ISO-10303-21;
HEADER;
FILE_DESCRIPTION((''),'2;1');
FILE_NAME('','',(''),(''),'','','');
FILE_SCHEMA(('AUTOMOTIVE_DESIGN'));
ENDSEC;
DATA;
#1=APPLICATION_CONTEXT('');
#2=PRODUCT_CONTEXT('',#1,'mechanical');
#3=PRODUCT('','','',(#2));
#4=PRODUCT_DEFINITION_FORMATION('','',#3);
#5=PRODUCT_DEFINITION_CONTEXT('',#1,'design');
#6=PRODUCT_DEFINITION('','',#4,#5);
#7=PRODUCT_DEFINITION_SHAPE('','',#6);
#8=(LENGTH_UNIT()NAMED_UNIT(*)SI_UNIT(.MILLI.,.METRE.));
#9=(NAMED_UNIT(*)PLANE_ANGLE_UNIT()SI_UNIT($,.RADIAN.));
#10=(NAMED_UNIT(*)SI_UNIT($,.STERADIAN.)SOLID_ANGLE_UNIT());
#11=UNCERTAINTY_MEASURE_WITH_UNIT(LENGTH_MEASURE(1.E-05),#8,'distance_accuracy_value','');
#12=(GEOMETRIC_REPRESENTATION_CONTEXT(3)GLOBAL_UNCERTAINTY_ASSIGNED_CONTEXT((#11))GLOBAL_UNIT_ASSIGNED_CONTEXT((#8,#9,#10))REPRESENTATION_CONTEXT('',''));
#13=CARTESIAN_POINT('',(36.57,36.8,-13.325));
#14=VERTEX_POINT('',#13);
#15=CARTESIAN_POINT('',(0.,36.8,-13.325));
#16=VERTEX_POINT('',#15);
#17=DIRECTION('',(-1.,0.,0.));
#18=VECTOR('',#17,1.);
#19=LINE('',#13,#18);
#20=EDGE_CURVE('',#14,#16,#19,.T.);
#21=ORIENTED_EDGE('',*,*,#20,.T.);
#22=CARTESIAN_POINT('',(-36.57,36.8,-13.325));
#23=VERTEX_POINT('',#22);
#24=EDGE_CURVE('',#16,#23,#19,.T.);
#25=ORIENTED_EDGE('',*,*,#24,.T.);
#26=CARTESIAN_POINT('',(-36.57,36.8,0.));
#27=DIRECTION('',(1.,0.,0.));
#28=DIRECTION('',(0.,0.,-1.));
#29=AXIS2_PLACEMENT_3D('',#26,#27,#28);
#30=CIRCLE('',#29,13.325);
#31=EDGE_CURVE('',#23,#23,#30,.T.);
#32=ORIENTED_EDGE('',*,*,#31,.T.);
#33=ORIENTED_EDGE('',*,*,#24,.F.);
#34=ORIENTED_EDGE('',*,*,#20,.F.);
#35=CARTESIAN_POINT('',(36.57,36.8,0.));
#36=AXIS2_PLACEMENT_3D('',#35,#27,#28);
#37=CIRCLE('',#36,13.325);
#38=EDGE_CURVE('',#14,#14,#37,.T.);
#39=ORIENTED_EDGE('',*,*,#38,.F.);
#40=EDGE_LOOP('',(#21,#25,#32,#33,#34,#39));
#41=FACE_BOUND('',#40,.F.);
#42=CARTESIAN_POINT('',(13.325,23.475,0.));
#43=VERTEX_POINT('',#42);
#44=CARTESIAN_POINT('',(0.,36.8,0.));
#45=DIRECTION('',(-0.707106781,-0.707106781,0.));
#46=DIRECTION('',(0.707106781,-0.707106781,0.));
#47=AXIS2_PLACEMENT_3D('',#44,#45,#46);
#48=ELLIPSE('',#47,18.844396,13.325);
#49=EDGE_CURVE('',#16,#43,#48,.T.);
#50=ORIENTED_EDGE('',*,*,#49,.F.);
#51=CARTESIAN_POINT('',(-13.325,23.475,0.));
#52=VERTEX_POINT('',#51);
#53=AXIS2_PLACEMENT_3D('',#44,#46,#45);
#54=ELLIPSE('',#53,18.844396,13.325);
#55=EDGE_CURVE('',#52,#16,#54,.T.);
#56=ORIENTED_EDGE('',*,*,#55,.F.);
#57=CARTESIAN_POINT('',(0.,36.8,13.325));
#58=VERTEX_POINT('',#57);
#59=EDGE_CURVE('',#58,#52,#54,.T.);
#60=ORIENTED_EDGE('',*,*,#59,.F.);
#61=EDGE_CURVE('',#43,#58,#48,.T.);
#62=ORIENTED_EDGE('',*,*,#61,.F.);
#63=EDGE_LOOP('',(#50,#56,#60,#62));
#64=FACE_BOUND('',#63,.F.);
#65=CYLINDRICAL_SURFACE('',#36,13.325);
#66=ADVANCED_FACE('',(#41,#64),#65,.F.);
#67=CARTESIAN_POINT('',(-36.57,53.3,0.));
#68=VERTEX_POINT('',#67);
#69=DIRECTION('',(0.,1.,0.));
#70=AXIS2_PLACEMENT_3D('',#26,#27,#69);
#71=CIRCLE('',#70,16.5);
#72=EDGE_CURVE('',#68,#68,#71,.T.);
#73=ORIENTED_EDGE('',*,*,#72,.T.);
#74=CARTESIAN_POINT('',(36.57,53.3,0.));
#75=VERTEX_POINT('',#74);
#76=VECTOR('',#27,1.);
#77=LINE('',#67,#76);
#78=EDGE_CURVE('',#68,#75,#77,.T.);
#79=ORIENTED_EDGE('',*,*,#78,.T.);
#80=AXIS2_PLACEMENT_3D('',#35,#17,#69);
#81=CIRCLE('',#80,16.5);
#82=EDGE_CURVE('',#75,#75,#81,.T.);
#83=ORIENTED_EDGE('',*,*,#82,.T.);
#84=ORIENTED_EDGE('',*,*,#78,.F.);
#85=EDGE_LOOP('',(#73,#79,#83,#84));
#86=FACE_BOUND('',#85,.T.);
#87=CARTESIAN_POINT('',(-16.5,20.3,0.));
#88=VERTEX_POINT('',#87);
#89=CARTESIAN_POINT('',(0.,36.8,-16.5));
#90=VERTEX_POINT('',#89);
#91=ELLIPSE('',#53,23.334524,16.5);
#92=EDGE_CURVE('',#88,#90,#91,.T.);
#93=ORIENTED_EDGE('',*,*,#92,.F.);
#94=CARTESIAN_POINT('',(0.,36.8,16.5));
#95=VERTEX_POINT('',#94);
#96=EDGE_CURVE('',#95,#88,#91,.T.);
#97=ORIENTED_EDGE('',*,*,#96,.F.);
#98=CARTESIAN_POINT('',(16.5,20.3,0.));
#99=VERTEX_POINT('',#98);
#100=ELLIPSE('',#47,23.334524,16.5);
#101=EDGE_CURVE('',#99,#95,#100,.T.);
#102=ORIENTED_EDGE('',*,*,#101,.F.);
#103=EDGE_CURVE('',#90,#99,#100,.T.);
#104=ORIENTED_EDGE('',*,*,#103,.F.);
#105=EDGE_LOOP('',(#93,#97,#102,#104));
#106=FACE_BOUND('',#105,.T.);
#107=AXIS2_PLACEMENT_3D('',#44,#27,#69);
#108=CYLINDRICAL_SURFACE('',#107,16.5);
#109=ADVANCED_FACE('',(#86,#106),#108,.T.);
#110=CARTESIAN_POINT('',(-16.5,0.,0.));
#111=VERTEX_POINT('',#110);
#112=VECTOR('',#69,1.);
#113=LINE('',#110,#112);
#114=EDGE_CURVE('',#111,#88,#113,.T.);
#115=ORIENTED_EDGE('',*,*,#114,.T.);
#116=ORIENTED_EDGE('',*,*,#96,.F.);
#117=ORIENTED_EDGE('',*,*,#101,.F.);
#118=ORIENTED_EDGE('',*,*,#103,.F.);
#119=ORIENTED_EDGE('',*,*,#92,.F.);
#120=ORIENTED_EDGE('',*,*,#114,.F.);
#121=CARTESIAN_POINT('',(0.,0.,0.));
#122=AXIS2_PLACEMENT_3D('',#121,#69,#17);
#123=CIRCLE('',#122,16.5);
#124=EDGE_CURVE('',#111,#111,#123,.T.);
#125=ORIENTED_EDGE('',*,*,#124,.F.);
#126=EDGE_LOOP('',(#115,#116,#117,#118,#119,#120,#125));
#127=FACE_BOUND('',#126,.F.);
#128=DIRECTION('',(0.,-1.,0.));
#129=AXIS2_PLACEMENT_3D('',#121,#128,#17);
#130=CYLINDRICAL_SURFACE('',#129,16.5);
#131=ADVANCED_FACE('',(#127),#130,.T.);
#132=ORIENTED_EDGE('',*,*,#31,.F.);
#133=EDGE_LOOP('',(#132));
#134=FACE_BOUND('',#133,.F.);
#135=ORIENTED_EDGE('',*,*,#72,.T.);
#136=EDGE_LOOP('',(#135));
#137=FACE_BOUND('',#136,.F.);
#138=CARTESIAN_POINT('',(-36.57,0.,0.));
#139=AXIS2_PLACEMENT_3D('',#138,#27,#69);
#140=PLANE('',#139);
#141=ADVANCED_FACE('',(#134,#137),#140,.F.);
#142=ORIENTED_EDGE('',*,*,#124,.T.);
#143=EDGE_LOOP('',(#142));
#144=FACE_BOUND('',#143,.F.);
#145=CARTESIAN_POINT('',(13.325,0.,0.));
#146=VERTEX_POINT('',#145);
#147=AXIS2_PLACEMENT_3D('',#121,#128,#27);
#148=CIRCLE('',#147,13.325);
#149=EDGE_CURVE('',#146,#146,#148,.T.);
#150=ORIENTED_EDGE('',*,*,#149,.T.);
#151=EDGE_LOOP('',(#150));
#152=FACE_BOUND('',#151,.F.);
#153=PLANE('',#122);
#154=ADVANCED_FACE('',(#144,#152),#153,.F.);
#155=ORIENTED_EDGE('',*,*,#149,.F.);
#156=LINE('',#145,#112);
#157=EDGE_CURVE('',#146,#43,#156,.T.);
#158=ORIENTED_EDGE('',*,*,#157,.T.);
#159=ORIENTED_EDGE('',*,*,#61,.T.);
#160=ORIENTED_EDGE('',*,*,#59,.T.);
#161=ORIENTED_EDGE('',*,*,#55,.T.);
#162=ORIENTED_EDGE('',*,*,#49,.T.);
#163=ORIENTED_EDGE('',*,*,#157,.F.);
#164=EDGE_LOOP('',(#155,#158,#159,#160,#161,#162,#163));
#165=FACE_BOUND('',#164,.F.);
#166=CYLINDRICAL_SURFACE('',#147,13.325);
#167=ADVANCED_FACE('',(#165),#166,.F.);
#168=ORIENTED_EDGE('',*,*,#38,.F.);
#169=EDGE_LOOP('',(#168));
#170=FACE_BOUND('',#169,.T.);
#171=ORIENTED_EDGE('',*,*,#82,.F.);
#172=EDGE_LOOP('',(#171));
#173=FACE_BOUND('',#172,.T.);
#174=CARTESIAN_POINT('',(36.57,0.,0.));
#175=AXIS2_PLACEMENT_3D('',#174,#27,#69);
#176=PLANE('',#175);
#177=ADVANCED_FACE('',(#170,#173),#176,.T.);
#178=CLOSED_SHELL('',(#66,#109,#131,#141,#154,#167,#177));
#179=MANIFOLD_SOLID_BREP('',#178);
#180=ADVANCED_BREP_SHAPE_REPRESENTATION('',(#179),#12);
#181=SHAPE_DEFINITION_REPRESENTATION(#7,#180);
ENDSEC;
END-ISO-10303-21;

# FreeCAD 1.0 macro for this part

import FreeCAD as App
import Part
import Sketcher

doc = App.newDocument("Part")
body = doc.addObject("PartDesign::Body", "Body")

# Sketch on XZ plane
sketch1 = doc.addObject("Sketcher::SketchObject", "Sketch")
body.addObject(sketch1)
sketch1.AttachmentSupport = (doc.XZ_Plane, [""])
sketch1.MapMode = "FlatFace"
sketch1.addGeometry(Part.Circle(App.Vector(0, 0, 0), App.Vector(0, 0, 1), 16), False)
sketch1.addConstraint([
    Sketcher.Constraint("Coincident", 0, 3, -1, 1),
    Sketcher.Constraint("Diameter", 0, 33.0),
])
pad1 = doc.addObject("PartDesign::Pad", "Pad")
body.addObject(pad1)
pad1.Profile = sketch1
pad1.Length = 36.8
pad1.Reversed = True

# Sketch on YZ plane
sketch2 = doc.addObject("Sketcher::SketchObject", "Sketch001")
body.addObject(sketch2)
sketch2.AttachmentSupport = (doc.YZ_Plane, [""])
sketch2.MapMode = "FlatFace"
sketch2.addGeometry(Part.Circle(App.Vector(37, 0, 0), App.Vector(0, 0, 1), 16), False)
sketch2.addConstraint([
    Sketcher.Constraint("PointOnObject", 0, 3, -1),
    Sketcher.Constraint("Diameter", 0, 33.0),
    Sketcher.Constraint("DistanceX", -1, 1, 0, 3, 36.8),
])
pad2 = doc.addObject("PartDesign::Pad", "Pad001")
body.addObject(pad2)
pad2.Profile = sketch2
pad2.Length = 73.14
pad2.Midplane = True

# Sketch on YZ plane
sketch3 = doc.addObject("Sketcher::SketchObject", "Sketch002")
body.addObject(sketch3)
sketch3.AttachmentSupport = (doc.YZ_Plane, [""])
sketch3.MapMode = "FlatFace"
sketch3.AttachmentOffset = App.Placement(App.Vector(0, 0, 36.57), App.Rotation())
sketch3.addGeometry(Part.Circle(App.Vector(37, 0, 0), App.Vector(0, 0, 1), 13), False)
sketch3.addConstraint([
    Sketcher.Constraint("PointOnObject", 0, 3, -1),
    Sketcher.Constraint("Diameter", 0, 26.65),
    Sketcher.Constraint("DistanceX", -1, 1, 0, 3, 36.8),
])
pocket1 = doc.addObject("PartDesign::Pocket", "Pocket")
body.addObject(pocket1)
pocket1.Profile = sketch3
pocket1.Length = 73.14

# Sketch on XZ plane
sketch4 = doc.addObject("Sketcher::SketchObject", "Sketch003")
body.addObject(sketch4)
sketch4.AttachmentSupport = (doc.XZ_Plane, [""])
sketch4.MapMode = "FlatFace"
sketch4.addGeometry(Part.Circle(App.Vector(0, 0, 0), App.Vector(0, 0, 1), 13), False)
sketch4.addConstraint([
    Sketcher.Constraint("Coincident", 0, 3, -1, 1),
    Sketcher.Constraint("Diameter", 0, 26.65),
])
pocket2 = doc.addObject("PartDesign::Pocket", "Pocket001")
body.addObject(pocket2)
pocket2.Profile = sketch4
pocket2.Type = "UpToFirst"

doc.recompute()
